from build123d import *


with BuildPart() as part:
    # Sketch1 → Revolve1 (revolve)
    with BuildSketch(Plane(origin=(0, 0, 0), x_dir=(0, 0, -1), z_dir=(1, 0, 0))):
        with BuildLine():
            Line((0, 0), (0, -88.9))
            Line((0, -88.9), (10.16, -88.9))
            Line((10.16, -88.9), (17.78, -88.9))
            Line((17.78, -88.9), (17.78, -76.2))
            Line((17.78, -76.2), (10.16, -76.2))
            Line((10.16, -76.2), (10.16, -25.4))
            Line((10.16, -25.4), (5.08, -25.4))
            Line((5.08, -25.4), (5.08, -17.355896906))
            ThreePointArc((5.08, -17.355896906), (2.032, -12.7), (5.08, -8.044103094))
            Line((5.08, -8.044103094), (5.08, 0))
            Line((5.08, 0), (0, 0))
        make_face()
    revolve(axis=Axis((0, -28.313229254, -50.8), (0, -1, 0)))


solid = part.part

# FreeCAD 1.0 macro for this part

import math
import FreeCAD as App
import Part
import Sketcher

V = App.Vector
Q = App.Units.Quantity

doc = App.newDocument("Part")
params = doc.addObject("Spreadsheet::Sheet", "Params")
for row, (alias, value) in enumerate([
    ("sketch1_radius", "0.2 in"),
    ("sketch1_width", "2 in"),
    ("sketch1_width2", "3.5 in"),
    ("sketch1_width3", "0.5 in"),
    ("sketch1_height", "0.7 in"),
    ("revolution_angle", "360 deg"),
], start=1):
    params.set(f"A{row}", alias)
    params.set(f"B{row}", "=" + value)
    params.setAlias(f"B{row}", alias)

body = doc.addObject("PartDesign::Body", "Body")

# Sketch on YZ plane
sketch1 = body.newObject("Sketcher::SketchObject", "Sketch")
sketch1.AttachmentSupport = (doc.getObject("YZ_Plane"), [""])
sketch1.MapMode = "FlatFace"
sketch1.addGeometry([
    Part.LineSegment(V(0, 0, 0), V(-88.9, 0, 0)),  # 0
    Part.LineSegment(V(-88.9, 0, 0), V(-88.9, -17.78, 0)),  # 1
    Part.LineSegment(V(-88.9, -17.78, 0), V(-76.2, -17.78, 0)),  # 2
    Part.LineSegment(V(-76.2, -17.78, 0), V(-76.2, -10.16, 0)),  # 3
    Part.LineSegment(V(-76.2, -10.16, 0), V(-25.4, -10.16, 0)),  # 4
    Part.LineSegment(V(-25.4, -10.16, 0), V(-25.4, -5.08, 0)),  # 5
    Part.LineSegment(V(-25.4, -5.08, 0), V(-17.355897, -5.08, 0)),  # 6
    Part.ArcOfCircle(Part.Circle(V(-12.7, -7.112, 0), V(0, 0, 1), 5.08), math.radians(23.578178), math.radians(156.421822)),  # 7
    Part.LineSegment(V(-8.044103, -5.08, 0), V(0, -5.08, 0)),  # 8
    Part.LineSegment(V(0, -5.08, 0), V(0, 0, 0)),  # 9
], False)
sketch1.addGeometry(Part.LineSegment(V(0, -50.8, 0), V(-88.9, -50.8, 0)), True)  # axis
sketch1.addConstraint([
    Sketcher.Constraint("Coincident", 0, 2, 1, 1),
    Sketcher.Constraint("Coincident", 1, 2, 2, 1),
    Sketcher.Constraint("Coincident", 2, 2, 3, 1),
    Sketcher.Constraint("Coincident", 3, 2, 4, 1),
    Sketcher.Constraint("Coincident", 4, 2, 5, 1),
    Sketcher.Constraint("Coincident", 5, 2, 6, 1),
    Sketcher.Constraint("Coincident", 6, 2, 7, 2),
    Sketcher.Constraint("Coincident", 7, 1, 8, 1),
    Sketcher.Constraint("Coincident", 8, 2, 9, 1),
    Sketcher.Constraint("Coincident", 9, 2, 0, 1),
    Sketcher.Constraint("Horizontal", 0),
    Sketcher.Constraint("Vertical", 1),
    Sketcher.Constraint("Horizontal", 2),
    Sketcher.Constraint("Vertical", 3),
    Sketcher.Constraint("Horizontal", 4),
    Sketcher.Constraint("Vertical", 5),
    Sketcher.Constraint("Horizontal", 6),
    Sketcher.Constraint("Horizontal", 8),
    Sketcher.Constraint("Vertical", 9),
    Sketcher.Constraint("Horizontal", 10),
    Sketcher.Constraint("Coincident", 9, 2, -1, 1),
    Sketcher.Constraint("PointOnObject", 10, 1, -2),
    Sketcher.Constraint("Horizontal", 6, 2, 7, 1),
    Sketcher.Constraint("Vertical", 1, 2, 10, 2),
    Sketcher.Constraint("Equal", 6, 8),
    Sketcher.Constraint("Equal", 5, 9),
    Sketcher.Constraint("Radius", 7, Q("0.2 in")),
    Sketcher.Constraint("DistanceX", 4, 1, 4, 2, Q("2 in")),
    Sketcher.Constraint("DistanceX", 0, 2, 0, 1, Q("3.5 in")),
    Sketcher.Constraint("DistanceX", 2, 1, 2, 2, Q("0.5 in")),
    Sketcher.Constraint("DistanceY", 1, 2, 1, 1, Q("0.7 in")),
    Sketcher.Constraint("DistanceY", 3, 1, 3, 2, Q("0.3 in")),
    Sketcher.Constraint("DistanceY", 10, 1, -1, 1, Q("2 in")),
    Sketcher.Constraint("DistanceY", 7, 3, -1, 1, Q("0.28 in")),
])
sketch1.setExpression("Constraints[26]", "Params.sketch1_radius")
sketch1.setExpression("Constraints[27]", "Params.sketch1_width")
sketch1.setExpression("Constraints[28]", "Params.sketch1_width2")
sketch1.setExpression("Constraints[29]", "Params.sketch1_width3")
sketch1.setExpression("Constraints[30]", "Params.sketch1_height")
revolution = body.newObject("PartDesign::Revolution", "Revolution")
revolution.Profile = sketch1
revolution.ReferenceAxis = (sketch1, ["Axis0"])
revolution.setExpression("Angle", "Params.revolution_angle")

doc.recompute()
